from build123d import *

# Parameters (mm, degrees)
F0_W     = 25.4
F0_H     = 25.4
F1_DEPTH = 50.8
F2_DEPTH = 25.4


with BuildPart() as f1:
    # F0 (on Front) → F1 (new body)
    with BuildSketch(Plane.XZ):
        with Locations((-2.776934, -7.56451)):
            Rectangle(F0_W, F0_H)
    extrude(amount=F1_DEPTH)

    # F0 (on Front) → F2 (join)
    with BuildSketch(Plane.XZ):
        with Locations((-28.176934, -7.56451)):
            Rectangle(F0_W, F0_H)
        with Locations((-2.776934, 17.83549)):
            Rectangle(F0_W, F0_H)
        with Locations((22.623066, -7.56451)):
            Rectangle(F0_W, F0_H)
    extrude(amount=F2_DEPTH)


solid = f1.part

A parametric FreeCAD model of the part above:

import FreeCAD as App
import Part
import Sketcher
from FreeCAD import Vector
Q = App.Units.Quantity

doc = App.newDocument("Part")
body = doc.addObject("PartDesign::Body", "Body")

# Sketch on XZ plane
sketch1 = doc.addObject("Sketcher::SketchObject", "Sketch")
body.addObject(sketch1)
sketch1.AttachmentSupport = (doc.XZ_Plane, [""])
sketch1.MapMode = "FlatFace"
sketch1.addGeometry(Part.LineSegment(Vector(-15, 5, 0), Vector(-15, -20, 0)), False)
sketch1.addGeometry(Part.LineSegment(Vector(-15, -20, 0), Vector(10, -20, 0)), False)
sketch1.addGeometry(Part.LineSegment(Vector(10, -20, 0), Vector(10, 5, 0)), False)
sketch1.addGeometry(Part.LineSegment(Vector(10, 5, 0), Vector(-15, 5, 0)), False)
sketch1.addConstraint(Sketcher.Constraint("Coincident", 0, 2, 1, 1))
sketch1.addConstraint(Sketcher.Constraint("Coincident", 1, 2, 2, 1))
sketch1.addConstraint(Sketcher.Constraint("Coincident", 2, 2, 3, 1))
sketch1.addConstraint(Sketcher.Constraint("Coincident", 3, 2, 0, 1))
sketch1.addConstraint(Sketcher.Constraint("Vertical", 0))
sketch1.addConstraint(Sketcher.Constraint("Horizontal", 1))
sketch1.addConstraint(Sketcher.Constraint("Vertical", 2))
sketch1.addConstraint(Sketcher.Constraint("Horizontal", 3))
sketch1.addConstraint(Sketcher.Constraint("Equal", 3, 0))
sketch1.addConstraint(Sketcher.Constraint("DistanceX", 1, 1, 1, 2, Q("1 in")))
sketch1.addConstraint(Sketcher.Constraint("DistanceY", 0, 2, -1, 1, 20.26451))
sketch1.addConstraint(Sketcher.Constraint("DistanceX", 0, 2, -1, 1, 15.476934))
pad1 = doc.addObject("PartDesign::Pad", "Pad")
body.addObject(pad1)
pad1.Profile = sketch1
pad1.Length = Q("2 in")

# Sketch on XZ plane
sketch2 = doc.addObject("Sketcher::SketchObject", "Sketch001")
body.addObject(sketch2)
sketch2.AttachmentSupport = (doc.XZ_Plane, [""])
sketch2.MapMode = "FlatFace"
sketch2.addGeometry(Part.LineSegment(Vector(-41, 5, 0), Vector(-41, -20, 0)), False)
sketch2.addGeometry(Part.LineSegment(Vector(-41, -20, 0), Vector(-15, -20, 0)), False)
sketch2.addGeometry(Part.LineSegment(Vector(-15, -20, 0), Vector(-15, 5, 0)), False)
sketch2.addGeometry(Part.LineSegment(Vector(-15, 5, 0), Vector(-41, 5, 0)), False)
sketch2.addGeometry(Part.LineSegment(Vector(-15, 31, 0), Vector(-15, 5, 0)), False)
sketch2.addGeometry(Part.LineSegment(Vector(-15, 5, 0), Vector(10, 5, 0)), False)
sketch2.addGeometry(Part.LineSegment(Vector(10, 5, 0), Vector(10, 31, 0)), False)
sketch2.addGeometry(Part.LineSegment(Vector(10, 31, 0), Vector(-15, 31, 0)), False)
sketch2.addGeometry(Part.LineSegment(Vector(10, 5, 0), Vector(10, -20, 0)), False)
sketch2.addGeometry(Part.LineSegment(Vector(10, -20, 0), Vector(35, -20, 0)), False)
sketch2.addGeometry(Part.LineSegment(Vector(35, -20, 0), Vector(35, 5, 0)), False)
sketch2.addGeometry(Part.LineSegment(Vector(35, 5, 0), Vector(10, 5, 0)), False)
sketch2.addConstraint(Sketcher.Constraint("Coincident", 0, 2, 1, 1))
sketch2.addConstraint(Sketcher.Constraint("Coincident", 1, 2, 2, 1))
sketch2.addConstraint(Sketcher.Constraint("Coincident", 2, 2, 3, 1))
sketch2.addConstraint(Sketcher.Constraint("Coincident", 3, 2, 0, 1))
sketch2.addConstraint(Sketcher.Constraint("Coincident", 4, 2, 5, 1))
sketch2.addConstraint(Sketcher.Constraint("Coincident", 5, 2, 6, 1))
sketch2.addConstraint(Sketcher.Constraint("Coincident", 6, 2, 7, 1))
sketch2.addConstraint(Sketcher.Constraint("Coincident", 7, 2, 4, 1))
sketch2.addConstraint(Sketcher.Constraint("Coincident", 8, 2, 9, 1))
sketch2.addConstraint(Sketcher.Constraint("Coincident", 9, 2, 10, 1))
sketch2.addConstraint(Sketcher.Constraint("Coincident", 10, 2, 11, 1))
sketch2.addConstraint(Sketcher.Constraint("Coincident", 11, 2, 8, 1))
sketch2.addConstraint(Sketcher.Constraint("Vertical", 0))
sketch2.addConstraint(Sketcher.Constraint("Horizontal", 1))
sketch2.addConstraint(Sketcher.Constraint("Vertical", 2))
sketch2.addConstraint(Sketcher.Constraint("Horizontal", 3))
sketch2.addConstraint(Sketcher.Constraint("Vertical", 4))
sketch2.addConstraint(Sketcher.Constraint("Horizontal", 5))
sketch2.addConstraint(Sketcher.Constraint("Vertical", 6))
sketch2.addConstraint(Sketcher.Constraint("Horizontal", 7))
sketch2.addConstraint(Sketcher.Constraint("Vertical", 8))
sketch2.addConstraint(Sketcher.Constraint("Horizontal", 9))
sketch2.addConstraint(Sketcher.Constraint("Vertical", 10))
sketch2.addConstraint(Sketcher.Constraint("Horizontal", 11))
sketch2.addConstraint(Sketcher.Constraint("Coincident", 4, 2, 2, 2))
sketch2.addConstraint(Sketcher.Constraint("Coincident", 11, 2, 5, 2))
sketch2.addConstraint(Sketcher.Constraint("Horizontal", 1, 2, 8, 2))
sketch2.addConstraint(Sketcher.Constraint("Equal", 3, 5))
sketch2.addConstraint(Sketcher.Constraint("Equal", 7, 9))
sketch2.addConstraint(Sketcher.Constraint("Equal", 11, 0))
sketch2.addConstraint(Sketcher.Constraint("Equal", 2, 4))
sketch2.addConstraint(Sketcher.Constraint("DistanceX", 1, 1, 1, 2, Q("1 in")))
sketch2.addConstraint(Sketcher.Constraint("DistanceY", 0, 2, -1, 1, 20.26451))
sketch2.addConstraint(Sketcher.Constraint("DistanceX", 0, 2, -1, 1, 40.876934))
pad2 = doc.addObject("PartDesign::Pad", "Pad001")
body.addObject(pad2)
pad2.Profile = sketch2
pad2.Length = Q("1 in")

doc.recompute()
